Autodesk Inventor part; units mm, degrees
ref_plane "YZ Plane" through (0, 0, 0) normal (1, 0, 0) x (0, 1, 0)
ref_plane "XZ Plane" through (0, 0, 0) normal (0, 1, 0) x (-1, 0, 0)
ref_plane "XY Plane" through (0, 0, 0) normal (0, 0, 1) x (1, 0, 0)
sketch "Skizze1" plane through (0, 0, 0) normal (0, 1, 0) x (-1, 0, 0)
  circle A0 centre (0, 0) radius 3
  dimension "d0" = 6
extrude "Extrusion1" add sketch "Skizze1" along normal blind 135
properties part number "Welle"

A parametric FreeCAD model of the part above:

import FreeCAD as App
import Part
import Sketcher
from FreeCAD import Vector
Q = App.Units.Quantity

doc = App.newDocument("Part")
body = doc.addObject("PartDesign::Body", "Body")

# Sketch on XZ plane
sketch1 = doc.addObject("Sketcher::SketchObject", "Sketch")
body.addObject(sketch1)
sketch1.AttachmentSupport = (doc.XZ_Plane, [""])
sketch1.MapMode = "FlatFace"
sketch1.addGeometry(Part.Circle(Vector(0, 0, 0), Vector(0, 0, 1), 3), False)
sketch1.addConstraint([
    Sketcher.Constraint("Coincident", 0, 3, -1, 1),
    Sketcher.Constraint("Diameter", 0, Q("6 mm")),
])
pad1 = doc.addObject("PartDesign::Pad", "Pad")
body.addObject(pad1)
pad1.Profile = sketch1
pad1.Length = 135
pad1.Reversed = True

doc.recompute()
